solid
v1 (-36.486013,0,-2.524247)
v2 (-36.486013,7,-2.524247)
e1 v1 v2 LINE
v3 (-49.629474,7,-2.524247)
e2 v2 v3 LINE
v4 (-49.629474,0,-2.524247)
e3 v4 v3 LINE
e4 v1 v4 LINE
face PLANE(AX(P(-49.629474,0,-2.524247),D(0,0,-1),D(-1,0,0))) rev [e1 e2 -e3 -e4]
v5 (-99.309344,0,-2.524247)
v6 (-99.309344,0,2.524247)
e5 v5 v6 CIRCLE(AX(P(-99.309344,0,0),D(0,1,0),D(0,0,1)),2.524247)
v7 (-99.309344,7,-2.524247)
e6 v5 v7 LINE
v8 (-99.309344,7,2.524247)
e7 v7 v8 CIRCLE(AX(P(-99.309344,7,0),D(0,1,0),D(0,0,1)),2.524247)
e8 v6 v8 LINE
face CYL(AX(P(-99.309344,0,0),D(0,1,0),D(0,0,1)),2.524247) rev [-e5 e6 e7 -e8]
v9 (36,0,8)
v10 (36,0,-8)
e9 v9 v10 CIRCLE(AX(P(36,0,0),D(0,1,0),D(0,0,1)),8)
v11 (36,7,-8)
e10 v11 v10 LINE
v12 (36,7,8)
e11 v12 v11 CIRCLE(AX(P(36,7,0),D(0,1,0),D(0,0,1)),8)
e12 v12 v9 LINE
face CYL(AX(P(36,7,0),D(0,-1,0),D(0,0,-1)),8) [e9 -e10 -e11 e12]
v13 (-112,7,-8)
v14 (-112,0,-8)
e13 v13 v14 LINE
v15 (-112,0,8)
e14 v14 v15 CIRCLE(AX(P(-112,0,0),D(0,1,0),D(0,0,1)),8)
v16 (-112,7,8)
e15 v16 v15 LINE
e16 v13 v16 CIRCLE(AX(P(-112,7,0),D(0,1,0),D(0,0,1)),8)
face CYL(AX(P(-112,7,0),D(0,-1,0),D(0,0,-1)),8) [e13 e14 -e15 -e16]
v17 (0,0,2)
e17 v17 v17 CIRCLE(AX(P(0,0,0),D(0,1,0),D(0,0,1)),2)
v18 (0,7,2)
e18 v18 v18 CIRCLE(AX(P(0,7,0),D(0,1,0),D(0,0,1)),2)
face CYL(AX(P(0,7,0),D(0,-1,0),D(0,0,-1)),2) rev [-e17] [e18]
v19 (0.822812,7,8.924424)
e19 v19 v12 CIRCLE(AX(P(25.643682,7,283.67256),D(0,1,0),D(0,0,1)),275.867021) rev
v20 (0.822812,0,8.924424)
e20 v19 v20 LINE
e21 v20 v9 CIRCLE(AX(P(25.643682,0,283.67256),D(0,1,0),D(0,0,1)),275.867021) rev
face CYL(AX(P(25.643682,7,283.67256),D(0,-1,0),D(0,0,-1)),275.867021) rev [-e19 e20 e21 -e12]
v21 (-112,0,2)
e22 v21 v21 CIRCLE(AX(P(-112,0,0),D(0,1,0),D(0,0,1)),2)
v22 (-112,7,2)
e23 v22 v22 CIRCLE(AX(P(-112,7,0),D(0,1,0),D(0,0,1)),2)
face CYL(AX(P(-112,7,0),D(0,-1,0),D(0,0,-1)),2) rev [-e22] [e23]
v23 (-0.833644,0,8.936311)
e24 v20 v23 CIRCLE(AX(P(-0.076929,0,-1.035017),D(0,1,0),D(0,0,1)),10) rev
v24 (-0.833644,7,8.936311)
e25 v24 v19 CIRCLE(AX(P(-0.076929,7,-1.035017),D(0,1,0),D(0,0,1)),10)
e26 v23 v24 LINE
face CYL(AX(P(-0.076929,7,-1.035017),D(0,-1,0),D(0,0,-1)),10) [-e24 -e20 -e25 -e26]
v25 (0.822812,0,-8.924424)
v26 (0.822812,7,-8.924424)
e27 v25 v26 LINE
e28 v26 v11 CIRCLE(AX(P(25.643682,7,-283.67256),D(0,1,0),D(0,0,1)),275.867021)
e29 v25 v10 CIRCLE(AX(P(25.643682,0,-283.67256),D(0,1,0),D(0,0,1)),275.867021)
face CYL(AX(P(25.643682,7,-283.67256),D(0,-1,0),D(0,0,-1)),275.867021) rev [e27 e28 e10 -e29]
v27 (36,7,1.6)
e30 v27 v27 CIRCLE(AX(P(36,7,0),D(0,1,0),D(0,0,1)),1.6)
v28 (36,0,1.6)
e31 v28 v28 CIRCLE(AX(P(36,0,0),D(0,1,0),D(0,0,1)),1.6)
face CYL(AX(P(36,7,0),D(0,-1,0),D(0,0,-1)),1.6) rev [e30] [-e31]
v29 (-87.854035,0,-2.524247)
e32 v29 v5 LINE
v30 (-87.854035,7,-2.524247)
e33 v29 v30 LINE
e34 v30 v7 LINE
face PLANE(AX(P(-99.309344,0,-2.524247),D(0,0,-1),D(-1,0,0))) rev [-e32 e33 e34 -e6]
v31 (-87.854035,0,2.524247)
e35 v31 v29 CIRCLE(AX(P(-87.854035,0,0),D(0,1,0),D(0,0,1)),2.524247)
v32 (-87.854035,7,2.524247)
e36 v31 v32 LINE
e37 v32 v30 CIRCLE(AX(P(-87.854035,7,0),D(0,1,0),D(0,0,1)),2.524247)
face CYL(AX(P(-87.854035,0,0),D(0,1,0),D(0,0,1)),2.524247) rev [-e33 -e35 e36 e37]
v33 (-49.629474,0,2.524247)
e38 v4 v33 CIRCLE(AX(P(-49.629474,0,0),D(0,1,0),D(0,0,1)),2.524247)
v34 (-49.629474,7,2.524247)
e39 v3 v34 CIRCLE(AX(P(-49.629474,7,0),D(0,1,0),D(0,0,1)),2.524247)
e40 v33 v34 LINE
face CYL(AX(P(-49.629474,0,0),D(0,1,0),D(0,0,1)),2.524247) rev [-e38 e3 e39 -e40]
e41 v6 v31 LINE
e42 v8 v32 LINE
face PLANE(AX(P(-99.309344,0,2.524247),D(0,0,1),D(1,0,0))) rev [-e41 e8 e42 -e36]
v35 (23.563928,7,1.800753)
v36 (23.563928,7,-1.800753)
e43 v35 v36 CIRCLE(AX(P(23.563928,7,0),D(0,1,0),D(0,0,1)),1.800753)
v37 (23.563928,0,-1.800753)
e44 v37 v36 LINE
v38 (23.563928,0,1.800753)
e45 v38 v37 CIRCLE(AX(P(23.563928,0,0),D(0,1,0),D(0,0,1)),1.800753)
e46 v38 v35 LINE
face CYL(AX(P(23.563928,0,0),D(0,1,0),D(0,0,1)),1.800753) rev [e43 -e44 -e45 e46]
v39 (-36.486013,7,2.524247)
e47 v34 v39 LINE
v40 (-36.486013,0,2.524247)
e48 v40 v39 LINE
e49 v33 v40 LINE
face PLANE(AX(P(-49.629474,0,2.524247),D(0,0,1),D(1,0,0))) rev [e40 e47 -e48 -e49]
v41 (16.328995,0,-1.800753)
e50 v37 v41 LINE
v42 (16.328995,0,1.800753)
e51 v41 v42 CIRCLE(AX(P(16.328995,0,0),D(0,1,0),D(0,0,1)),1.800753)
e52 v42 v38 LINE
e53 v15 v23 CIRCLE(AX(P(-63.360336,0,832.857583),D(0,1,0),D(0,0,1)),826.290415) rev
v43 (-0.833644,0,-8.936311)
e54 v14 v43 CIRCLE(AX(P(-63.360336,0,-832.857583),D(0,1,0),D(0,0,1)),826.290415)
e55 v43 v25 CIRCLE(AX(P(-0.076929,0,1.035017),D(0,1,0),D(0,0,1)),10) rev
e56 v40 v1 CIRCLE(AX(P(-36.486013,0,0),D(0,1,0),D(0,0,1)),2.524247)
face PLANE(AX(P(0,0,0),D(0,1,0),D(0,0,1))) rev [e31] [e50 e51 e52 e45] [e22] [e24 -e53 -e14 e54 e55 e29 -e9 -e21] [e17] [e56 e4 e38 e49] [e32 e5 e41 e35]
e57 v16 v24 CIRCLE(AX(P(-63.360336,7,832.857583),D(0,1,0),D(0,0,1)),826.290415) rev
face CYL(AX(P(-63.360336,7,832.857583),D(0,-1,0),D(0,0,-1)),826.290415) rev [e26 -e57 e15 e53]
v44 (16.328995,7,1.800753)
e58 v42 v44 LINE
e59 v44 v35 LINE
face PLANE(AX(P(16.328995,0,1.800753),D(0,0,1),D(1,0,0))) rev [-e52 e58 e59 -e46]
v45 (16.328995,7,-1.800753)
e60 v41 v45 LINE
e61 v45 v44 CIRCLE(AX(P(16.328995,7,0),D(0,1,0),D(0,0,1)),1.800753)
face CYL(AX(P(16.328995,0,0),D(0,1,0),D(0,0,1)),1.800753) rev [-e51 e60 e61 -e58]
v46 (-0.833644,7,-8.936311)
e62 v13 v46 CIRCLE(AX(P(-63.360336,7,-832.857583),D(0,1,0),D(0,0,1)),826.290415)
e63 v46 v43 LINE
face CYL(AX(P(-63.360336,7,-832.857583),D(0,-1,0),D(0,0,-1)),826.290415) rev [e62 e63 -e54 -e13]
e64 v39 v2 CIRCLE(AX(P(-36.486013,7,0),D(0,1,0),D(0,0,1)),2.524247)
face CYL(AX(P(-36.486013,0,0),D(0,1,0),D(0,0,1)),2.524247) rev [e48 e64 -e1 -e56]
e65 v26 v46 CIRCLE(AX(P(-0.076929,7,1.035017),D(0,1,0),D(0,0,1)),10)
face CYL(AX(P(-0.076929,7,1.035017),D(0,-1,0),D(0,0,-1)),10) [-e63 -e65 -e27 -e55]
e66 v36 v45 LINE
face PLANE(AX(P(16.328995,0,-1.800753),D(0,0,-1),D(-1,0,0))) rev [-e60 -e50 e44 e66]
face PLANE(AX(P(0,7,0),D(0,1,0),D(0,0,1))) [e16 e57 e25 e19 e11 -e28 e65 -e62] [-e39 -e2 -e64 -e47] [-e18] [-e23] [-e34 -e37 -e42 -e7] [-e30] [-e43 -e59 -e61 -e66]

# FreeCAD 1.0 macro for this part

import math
import FreeCAD as App
import Part
import Sketcher
from FreeCAD import Vector


def edges_at(feature, points):
    """Names of the edges that pass closest to the given points."""
    edges = feature.Shape.Edges
    near = lambda p: min(range(len(edges)), key=lambda i: edges[i].distToShape(Part.Vertex(*p))[0])
    return sorted({f"Edge{near(p) + 1}" for p in points})

doc = App.newDocument("Part")
body = doc.addObject("PartDesign::Body", "Body")

sketch1 = doc.addObject("Sketcher::SketchObject", "Sketch")
body.addObject(sketch1)
sketch1.AttachmentSupport = (doc.XZ_Plane, [""])
sketch1.MapMode = "FlatFace"
sketch1.addGeometry([
    Part.ArcOfCircle(Part.Circle(Vector(-63.4, 832.9, 0), Vector(0, 0, 1), 826.3), math.radians(-93.37), math.radians(-85.6)),
    Part.ArcOfCircle(Part.Circle(Vector(25.6, 283.7, 0), Vector(0, 0, 1), 275.9), math.radians(-95.33), math.radians(-87.85)),
    Part.ArcOfCircle(Part.Circle(Vector(36, 0, 0), Vector(0, 0, 1), 8), math.radians(-90), math.radians(90)),
    Part.ArcOfCircle(Part.Circle(Vector(25.6, -283.7, 0), Vector(0, 0, 1), 275.9), math.radians(87.85), math.radians(95.33)),
    Part.ArcOfCircle(Part.Circle(Vector(-63.4, -832.9, 0), Vector(0, 0, 1), 826.3), math.radians(85.6), math.radians(93.37)),
    Part.ArcOfCircle(Part.Circle(Vector(-112, 0, 0), Vector(0, 0, 1), 8), math.radians(90), math.radians(270)),
    Part.Circle(Vector(-112, 0, 0), Vector(0, 0, 1), 2),
    Part.Circle(Vector(0, 0, 0), Vector(0, 0, 1), 2),
    Part.Circle(Vector(36, 0, 0), Vector(0, 0, 1), 1.6),
], False)
sketch1.addConstraint([
    Sketcher.Constraint("Coincident", 0, 2, 1, 1),
    Sketcher.Constraint("Coincident", 1, 2, 2, 2),
    Sketcher.Constraint("Coincident", 2, 1, 3, 1),
    Sketcher.Constraint("Coincident", 3, 2, 4, 1),
    Sketcher.Constraint("Coincident", 4, 2, 5, 2),
    Sketcher.Constraint("Coincident", 5, 1, 0, 1),
    Sketcher.Constraint("Coincident", 7, 3, -1, 1),
    Sketcher.Constraint("Coincident", 6, 3, 5, 3),
    Sketcher.Constraint("Coincident", 8, 3, 2, 3),
    Sketcher.Constraint("Equal", 1, 3),
    Sketcher.Constraint("Equal", 0, 4),
    Sketcher.Constraint("Equal", 2, 5),
    Sketcher.Constraint("Equal", 6, 7),
    Sketcher.Constraint("Symmetric", 0, 2, 3, 2, -1, 1),
    Sketcher.Constraint("Symmetric", 1, 3, 3, 3, -1),
    Sketcher.Constraint("Symmetric", 4, 2, 5, 1, -1),
    Sketcher.Constraint("PointOnObject", 2, 3, -1),
    Sketcher.Constraint("Vertical", 8, 3, 1, 2),
    Sketcher.Constraint("Vertical", 6, 3, 4, 2),
    Sketcher.Constraint("Diameter", 6, 4.0),
    Sketcher.Constraint("Radius", 2, 8.0),
    Sketcher.Constraint("Diameter", 8, 3.2),
    Sketcher.Constraint("DistanceX", -1, 1, 2, 3, 36.0),
    Sketcher.Constraint("DistanceX", 5, 3, -1, 1, 112.0),
    Sketcher.Constraint("DistanceY", 3, 2, -1, 1, 9.0),
    Sketcher.Constraint("Radius", 1, 275.867021),
    Sketcher.Constraint("Radius", 0, 826.290415),
])
pad1 = doc.addObject("PartDesign::Pad", "Pad")
body.addObject(pad1)
pad1.Profile = sketch1
pad1.Length = 7
pad1.Reversed = True
doc.recompute()

fillet = doc.addObject("PartDesign::Fillet", "Fillet")
body.addObject(fillet)
fillet.Base = (pad1, edges_at(pad1, [(0, 3.5, 9), (0, 3.5, -9)]))
fillet.Radius = 10

sketch2 = doc.addObject("Sketcher::SketchObject", "Sketch001")
body.addObject(sketch2)
sketch2.AttachmentSupport = (doc.XZ_Plane, [""])
sketch2.MapMode = "FlatFace"
sketch2.AttachmentOffset = App.Placement(Vector(0, 0, -7), App.Rotation())
sketch2.addGeometry([
    Part.LineSegment(Vector(-87.9, -2.5, 0), Vector(-99.3, -2.5, 0)),
    Part.ArcOfCircle(Part.Circle(Vector(-99.3, 0, 0), Vector(0, 0, 1), 2.5), math.radians(90), math.radians(270)),
    Part.LineSegment(Vector(-99.3, 2.5, 0), Vector(-87.9, 2.5, 0)),
    Part.ArcOfCircle(Part.Circle(Vector(-87.9, 0, 0), Vector(0, 0, 1), 2.5), math.radians(-90), math.radians(90)),
    Part.LineSegment(Vector(-36.5, -2.5, 0), Vector(-49.6, -2.5, 0)),
    Part.ArcOfCircle(Part.Circle(Vector(-49.6, 0, 0), Vector(0, 0, 1), 2.5), math.radians(90), math.radians(270)),
    Part.LineSegment(Vector(-49.6, 2.5, 0), Vector(-36.5, 2.5, 0)),
    Part.ArcOfCircle(Part.Circle(Vector(-36.5, 0, 0), Vector(0, 0, 1), 2.5), math.radians(-90), math.radians(90)),
    Part.LineSegment(Vector(23.6, -1.8, 0), Vector(16.3, -1.8, 0)),
    Part.ArcOfCircle(Part.Circle(Vector(16.3, 0, 0), Vector(0, 0, 1), 1.8), math.radians(90), math.radians(270)),
    Part.LineSegment(Vector(16.3, 1.8, 0), Vector(23.6, 1.8, 0)),
    Part.ArcOfCircle(Part.Circle(Vector(23.6, 0, 0), Vector(0, 0, 1), 1.8), math.radians(-90), math.radians(90)),
], False)
sketch2.addConstraint([
    Sketcher.Constraint("Tangent", 0, 2, 1, 2),
    Sketcher.Constraint("Tangent", 1, 1, 2, 1),
    Sketcher.Constraint("Tangent", 2, 2, 3, 2),
    Sketcher.Constraint("Tangent", 3, 1, 0, 1),
    Sketcher.Constraint("Tangent", 4, 2, 5, 2),
    Sketcher.Constraint("Tangent", 5, 1, 6, 1),
    Sketcher.Constraint("Tangent", 6, 2, 7, 2),
    Sketcher.Constraint("Tangent", 7, 1, 4, 1),
    Sketcher.Constraint("Tangent", 8, 2, 9, 2),
    Sketcher.Constraint("Tangent", 9, 1, 10, 1),
    Sketcher.Constraint("Tangent", 10, 2, 11, 2),
    Sketcher.Constraint("Tangent", 11, 1, 8, 1),
    Sketcher.Constraint("Horizontal", 0),
    Sketcher.Constraint("Horizontal", 2),
    Sketcher.Constraint("Horizontal", 4),
    Sketcher.Constraint("Horizontal", 6),
    Sketcher.Constraint("Horizontal", 8),
    Sketcher.Constraint("Horizontal", 10),
    Sketcher.Constraint("Equal", 3, 5),
    Sketcher.Constraint("PointOnObject", 1, 3, -1),
    Sketcher.Constraint("PointOnObject", 5, 3, -1),
    Sketcher.Constraint("PointOnObject", 9, 3, -1),
    Sketcher.Constraint("Radius", 1, 2.524247),
    Sketcher.Constraint("Radius", 9, 1.800753),
    Sketcher.Constraint("DistanceX", 0, 2, 0, 1, 11.45531),
    Sketcher.Constraint("DistanceX", 4, 2, 4, 1, 13.143461),
    Sketcher.Constraint("DistanceX", 5, 3, 11, 3, 73.193402),
    Sketcher.Constraint("DistanceX", 8, 2, 8, 1, 7.234933),
    Sketcher.Constraint("DistanceX", 3, 3, 5, 3, 38.224561),
    Sketcher.Constraint("DistanceX", 1, 3, -1, 1, 99.309344),
])
pocket1 = doc.addObject("PartDesign::Pocket", "Pocket")
body.addObject(pocket1)
pocket1.Profile = sketch2
pocket1.Length = 7
pocket1.Reversed = True

doc.recompute()
